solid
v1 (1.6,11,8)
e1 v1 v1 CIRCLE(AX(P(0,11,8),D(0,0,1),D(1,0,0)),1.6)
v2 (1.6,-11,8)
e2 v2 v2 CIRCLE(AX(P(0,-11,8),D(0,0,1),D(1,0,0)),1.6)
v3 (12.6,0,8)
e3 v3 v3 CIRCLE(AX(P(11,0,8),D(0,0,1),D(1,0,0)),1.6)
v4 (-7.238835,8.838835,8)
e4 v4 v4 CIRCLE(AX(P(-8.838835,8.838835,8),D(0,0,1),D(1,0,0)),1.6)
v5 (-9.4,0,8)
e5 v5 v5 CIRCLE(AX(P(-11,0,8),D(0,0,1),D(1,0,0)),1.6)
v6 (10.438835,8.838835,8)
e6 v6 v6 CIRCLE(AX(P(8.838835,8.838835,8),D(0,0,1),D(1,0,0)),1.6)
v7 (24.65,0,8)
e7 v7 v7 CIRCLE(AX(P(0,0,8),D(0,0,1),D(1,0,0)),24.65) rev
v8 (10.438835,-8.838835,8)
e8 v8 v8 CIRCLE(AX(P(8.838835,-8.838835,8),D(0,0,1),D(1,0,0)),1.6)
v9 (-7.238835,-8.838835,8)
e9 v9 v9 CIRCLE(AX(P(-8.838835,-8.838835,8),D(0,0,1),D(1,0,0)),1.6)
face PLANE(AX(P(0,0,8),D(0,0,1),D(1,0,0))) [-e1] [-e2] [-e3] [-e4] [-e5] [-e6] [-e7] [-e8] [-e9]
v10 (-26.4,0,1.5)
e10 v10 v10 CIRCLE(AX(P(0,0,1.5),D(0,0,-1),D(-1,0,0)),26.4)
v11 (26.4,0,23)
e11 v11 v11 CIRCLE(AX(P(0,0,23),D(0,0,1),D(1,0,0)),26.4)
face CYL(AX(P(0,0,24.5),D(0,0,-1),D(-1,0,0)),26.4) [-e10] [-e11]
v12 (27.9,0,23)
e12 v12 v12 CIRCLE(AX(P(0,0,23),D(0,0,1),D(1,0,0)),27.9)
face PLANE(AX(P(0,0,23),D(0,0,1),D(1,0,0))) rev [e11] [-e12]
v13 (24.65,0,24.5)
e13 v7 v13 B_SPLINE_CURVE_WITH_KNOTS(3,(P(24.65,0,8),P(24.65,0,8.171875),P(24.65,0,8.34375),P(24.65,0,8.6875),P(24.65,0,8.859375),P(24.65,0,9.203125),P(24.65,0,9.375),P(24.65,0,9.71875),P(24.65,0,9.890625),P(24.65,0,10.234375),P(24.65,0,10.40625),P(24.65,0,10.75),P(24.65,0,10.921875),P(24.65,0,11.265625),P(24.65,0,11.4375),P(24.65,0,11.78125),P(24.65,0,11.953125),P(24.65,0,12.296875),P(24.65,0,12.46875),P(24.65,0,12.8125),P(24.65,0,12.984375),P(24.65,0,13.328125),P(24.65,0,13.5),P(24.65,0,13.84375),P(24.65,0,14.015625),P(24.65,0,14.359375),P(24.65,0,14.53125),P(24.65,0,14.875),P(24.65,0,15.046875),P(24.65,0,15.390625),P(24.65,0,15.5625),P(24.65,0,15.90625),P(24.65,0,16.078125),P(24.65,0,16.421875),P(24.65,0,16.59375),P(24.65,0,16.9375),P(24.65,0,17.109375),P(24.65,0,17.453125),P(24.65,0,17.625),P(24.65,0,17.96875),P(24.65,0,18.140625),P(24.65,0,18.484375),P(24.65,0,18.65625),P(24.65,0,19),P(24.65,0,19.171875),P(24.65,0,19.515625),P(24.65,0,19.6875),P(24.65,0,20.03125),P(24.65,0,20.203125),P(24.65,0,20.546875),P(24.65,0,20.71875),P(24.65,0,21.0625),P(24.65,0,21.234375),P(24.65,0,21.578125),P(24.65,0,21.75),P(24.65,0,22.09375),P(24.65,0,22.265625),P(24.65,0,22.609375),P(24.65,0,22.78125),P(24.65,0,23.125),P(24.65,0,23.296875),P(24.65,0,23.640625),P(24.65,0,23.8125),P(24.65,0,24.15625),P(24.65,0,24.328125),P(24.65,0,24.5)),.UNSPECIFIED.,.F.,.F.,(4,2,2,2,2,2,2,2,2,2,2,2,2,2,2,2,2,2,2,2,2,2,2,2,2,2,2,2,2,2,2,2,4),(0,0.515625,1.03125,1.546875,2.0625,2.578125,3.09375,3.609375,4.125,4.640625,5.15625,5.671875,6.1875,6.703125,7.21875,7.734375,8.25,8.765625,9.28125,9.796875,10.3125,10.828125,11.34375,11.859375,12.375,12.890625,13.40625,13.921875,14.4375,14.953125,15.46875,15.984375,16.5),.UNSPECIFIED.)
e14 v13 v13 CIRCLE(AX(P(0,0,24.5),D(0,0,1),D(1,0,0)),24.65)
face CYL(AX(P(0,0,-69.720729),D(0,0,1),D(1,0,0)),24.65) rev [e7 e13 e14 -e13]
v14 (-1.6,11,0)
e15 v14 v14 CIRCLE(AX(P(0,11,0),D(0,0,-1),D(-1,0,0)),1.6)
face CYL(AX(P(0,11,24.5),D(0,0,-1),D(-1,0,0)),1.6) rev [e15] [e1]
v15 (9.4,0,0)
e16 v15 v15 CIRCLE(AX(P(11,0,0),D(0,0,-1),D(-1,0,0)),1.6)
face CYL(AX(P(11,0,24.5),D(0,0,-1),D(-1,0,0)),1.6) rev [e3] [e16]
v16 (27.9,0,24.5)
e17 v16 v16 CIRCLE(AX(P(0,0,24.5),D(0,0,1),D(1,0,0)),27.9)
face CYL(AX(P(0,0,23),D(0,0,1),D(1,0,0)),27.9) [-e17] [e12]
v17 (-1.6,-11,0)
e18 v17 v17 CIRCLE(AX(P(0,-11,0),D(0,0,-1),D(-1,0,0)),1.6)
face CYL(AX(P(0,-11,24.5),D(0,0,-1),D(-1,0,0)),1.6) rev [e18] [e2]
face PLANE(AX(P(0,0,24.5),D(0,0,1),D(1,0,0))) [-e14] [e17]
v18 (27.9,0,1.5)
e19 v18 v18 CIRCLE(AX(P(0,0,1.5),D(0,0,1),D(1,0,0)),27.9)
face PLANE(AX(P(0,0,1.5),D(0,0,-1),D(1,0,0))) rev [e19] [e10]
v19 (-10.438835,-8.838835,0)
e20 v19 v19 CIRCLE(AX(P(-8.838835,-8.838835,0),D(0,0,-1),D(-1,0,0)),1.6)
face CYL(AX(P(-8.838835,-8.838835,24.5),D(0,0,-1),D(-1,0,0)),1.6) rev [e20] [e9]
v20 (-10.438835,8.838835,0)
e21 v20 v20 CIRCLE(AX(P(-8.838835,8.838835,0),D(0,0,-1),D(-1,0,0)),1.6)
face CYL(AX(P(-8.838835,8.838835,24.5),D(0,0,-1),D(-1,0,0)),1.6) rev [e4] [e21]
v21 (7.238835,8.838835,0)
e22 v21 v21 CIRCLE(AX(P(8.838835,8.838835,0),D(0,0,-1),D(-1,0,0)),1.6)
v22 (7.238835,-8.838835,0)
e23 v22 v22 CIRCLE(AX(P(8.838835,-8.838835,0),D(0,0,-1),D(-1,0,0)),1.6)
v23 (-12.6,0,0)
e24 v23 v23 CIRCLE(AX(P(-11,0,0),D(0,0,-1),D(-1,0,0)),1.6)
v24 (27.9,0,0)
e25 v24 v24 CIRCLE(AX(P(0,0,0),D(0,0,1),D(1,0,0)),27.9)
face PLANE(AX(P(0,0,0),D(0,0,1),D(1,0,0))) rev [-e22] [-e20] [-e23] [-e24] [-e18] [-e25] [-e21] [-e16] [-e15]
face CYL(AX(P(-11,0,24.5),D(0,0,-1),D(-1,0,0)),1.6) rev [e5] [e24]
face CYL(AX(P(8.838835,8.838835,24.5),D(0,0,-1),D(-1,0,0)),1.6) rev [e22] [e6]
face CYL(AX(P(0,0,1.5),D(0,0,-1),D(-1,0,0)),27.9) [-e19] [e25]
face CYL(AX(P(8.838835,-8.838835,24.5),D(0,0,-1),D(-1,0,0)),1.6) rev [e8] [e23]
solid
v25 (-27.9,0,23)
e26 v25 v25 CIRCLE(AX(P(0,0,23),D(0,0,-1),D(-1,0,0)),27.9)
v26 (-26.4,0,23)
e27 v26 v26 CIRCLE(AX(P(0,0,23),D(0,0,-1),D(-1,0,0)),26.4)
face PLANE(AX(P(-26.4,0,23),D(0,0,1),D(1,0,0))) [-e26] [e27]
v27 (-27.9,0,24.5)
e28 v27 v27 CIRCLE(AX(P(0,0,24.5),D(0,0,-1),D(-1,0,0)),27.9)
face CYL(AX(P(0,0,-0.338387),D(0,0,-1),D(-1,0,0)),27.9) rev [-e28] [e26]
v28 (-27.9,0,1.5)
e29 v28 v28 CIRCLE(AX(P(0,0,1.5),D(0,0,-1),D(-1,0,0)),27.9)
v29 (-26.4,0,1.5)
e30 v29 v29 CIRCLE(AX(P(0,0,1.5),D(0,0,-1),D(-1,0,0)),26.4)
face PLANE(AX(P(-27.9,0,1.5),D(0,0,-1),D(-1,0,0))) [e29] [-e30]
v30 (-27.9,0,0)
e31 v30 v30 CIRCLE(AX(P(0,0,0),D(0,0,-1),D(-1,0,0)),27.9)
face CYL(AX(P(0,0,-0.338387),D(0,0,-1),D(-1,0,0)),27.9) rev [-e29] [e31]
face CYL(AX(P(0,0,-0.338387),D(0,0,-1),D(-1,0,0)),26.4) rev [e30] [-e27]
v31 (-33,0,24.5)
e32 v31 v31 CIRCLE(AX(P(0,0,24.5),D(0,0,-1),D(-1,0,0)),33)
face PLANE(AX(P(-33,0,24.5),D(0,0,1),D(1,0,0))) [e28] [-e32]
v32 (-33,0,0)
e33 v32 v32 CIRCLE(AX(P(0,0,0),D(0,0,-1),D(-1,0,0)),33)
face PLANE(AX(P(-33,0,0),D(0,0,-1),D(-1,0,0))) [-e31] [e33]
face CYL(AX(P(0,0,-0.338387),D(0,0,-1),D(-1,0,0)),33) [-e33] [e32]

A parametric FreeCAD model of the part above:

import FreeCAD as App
import Part
import Sketcher


def add_polygon(sketch, points):
    """Adds a closed chain of lines whose ends are joined by coincident constraints."""
    first, n = sketch.GeometryCount, len(points)
    for a, b in zip(points, points[1:] + points[:1]):
        sketch.addGeometry(Part.LineSegment(App.Vector(*a, 0), App.Vector(*b, 0)), False)
    for i in range(n):
        sketch.addConstraint(Sketcher.Constraint("Coincident", first + i, 2, first + (i + 1) % n, 1))

doc = App.newDocument("Part")
body = doc.addObject("PartDesign::Body", "Body")

# Sketch on XY plane
sketch1 = doc.addObject("Sketcher::SketchObject", "Sketch")
body.addObject(sketch1)
sketch1.AttachmentSupport = (doc.XY_Plane, [""])
sketch1.MapMode = "FlatFace"
sketch1.addGeometry(Part.Circle(App.Vector(0, 0, 0), App.Vector(0, 0, 1), 26.4), False)
sketch1.addConstraint([
    Sketcher.Constraint("Coincident", 0, 3, -1, 1),
    Sketcher.Constraint("Diameter", 0, 52.8),
])
pad1 = doc.addObject("PartDesign::Pad", "Pad")
body.addObject(pad1)
pad1.Profile = sketch1
pad1.Length = 24.5

# Sketch on XY plane
sketch2 = doc.addObject("Sketcher::SketchObject", "Sketch001")
body.addObject(sketch2)
sketch2.AttachmentSupport = (doc.XY_Plane, [""])
sketch2.MapMode = "FlatFace"
sketch2.AttachmentOffset = App.Placement(App.Vector(0, 0, 24.5), App.Rotation())
sketch2.addGeometry(Part.Circle(App.Vector(0, 0, 0), App.Vector(0, 0, 1), 24.65), False)
sketch2.addConstraint([
    Sketcher.Constraint("Coincident", 0, 3, -1, 1),
    Sketcher.Constraint("Diameter", 0, 49.3),
])
pocket1 = doc.addObject("PartDesign::Pocket", "Pocket")
body.addObject(pocket1)
pocket1.Profile = sketch2
pocket1.Length = 16.5

# Sketch on XY plane
sketch3 = doc.addObject("Sketcher::SketchObject", "Sketch002")
body.addObject(sketch3)
sketch3.AttachmentSupport = (doc.XY_Plane, [""])
sketch3.MapMode = "FlatFace"
sketch3.AttachmentOffset = App.Placement(App.Vector(0, 0, 23), App.Rotation())
sketch3.addGeometry([
    Part.Circle(App.Vector(0, 0, 0), App.Vector(0, 0, 1), 27.9),
    Part.Circle(App.Vector(0, 0, 0), App.Vector(0, 0, 1), 26.4),
], False)
sketch3.addConstraint([
    Sketcher.Constraint("Coincident", 0, 3, -1, 1),
    Sketcher.Constraint("Coincident", 1, 3, -1, 1),
    Sketcher.Constraint("Diameter", 0, 55.8),
    Sketcher.Constraint("Diameter", 1, 52.8),
])
pad2 = doc.addObject("PartDesign::Pad", "Pad001")
body.addObject(pad2)
pad2.Profile = sketch3
pad2.Length = 1.5
doc.recompute()

datumplane = doc.addObject("PartDesign::Plane", "DatumPlane")
body.addObject(datumplane)
datumplane.AttachmentSupport = (doc.XY_Plane, [""])
datumplane.MapMode = "FlatFace"
datumplane.AttachmentOffset = App.Placement(App.Vector(0, 0, 12.25), App.Rotation())
mirrored = doc.addObject("PartDesign::Mirrored", "Mirrored")
body.addObject(mirrored)
mirrored.Originals = [pad2]
mirrored.MirrorPlane = (datumplane, [""])
body.Tip = mirrored

# Sketch on XY plane
sketch4 = doc.addObject("Sketcher::SketchObject", "Sketch003")
body.addObject(sketch4)
sketch4.AttachmentSupport = (doc.XY_Plane, [""])
sketch4.MapMode = "FlatFace"
sketch4.addGeometry([
    Part.Circle(App.Vector(0, 11, 0), App.Vector(0, 0, 1), 1.6),  # 0
    Part.Circle(App.Vector(-11, 0, 0), App.Vector(0, 0, 1), 1.6),  # 1
    Part.Circle(App.Vector(0, -11, 0), App.Vector(0, 0, 1), 1.6),  # 2
    Part.Circle(App.Vector(11, 0, 0), App.Vector(0, 0, 1), 1.6),  # 3
    Part.Circle(App.Vector(-8.838835, 8.838835, 0), App.Vector(0, 0, 1), 1.6),  # 4
    Part.Circle(App.Vector(8.838835, 8.838835, 0), App.Vector(0, 0, 1), 1.6),  # 5
    Part.Circle(App.Vector(8.838835, -8.838835, 0), App.Vector(0, 0, 1), 1.6),  # 6
    Part.Circle(App.Vector(-8.838835, -8.838835, 0), App.Vector(0, 0, 1), 1.6),  # 7
], False)
sketch4.addConstraint([
    Sketcher.Constraint("Equal", 0, 1),
    Sketcher.Constraint("Equal", 1, 2),
    Sketcher.Constraint("Equal", 2, 3),
    Sketcher.Constraint("Equal", 3, 4),
    Sketcher.Constraint("Equal", 4, 5),
    Sketcher.Constraint("Equal", 5, 6),
    Sketcher.Constraint("Equal", 6, 7),
    Sketcher.Constraint("Symmetric", 0, 3, 2, 3, -1, 1),
    Sketcher.Constraint("Symmetric", 1, 3, 3, 3, -1, 1),
    Sketcher.Constraint("Symmetric", 4, 3, 6, 3, -1, 1),
    Sketcher.Constraint("Symmetric", 5, 3, 7, 3, -1, 1),
    Sketcher.Constraint("Symmetric", 4, 3, 5, 3, -2),
    Sketcher.Constraint("PointOnObject", 0, 3, -2),
    Sketcher.Constraint("PointOnObject", 1, 3, -1),
    Sketcher.Constraint("Diameter", 0, 3.2),
    Sketcher.Constraint("DistanceY", -1, 1, 0, 3, 11.0),
    Sketcher.Constraint("DistanceX", 1, 3, -1, 1, 11.0),
    Sketcher.Constraint("DistanceX", 4, 3, 5, 3, 17.67767),
    Sketcher.Constraint("DistanceY", 6, 3, 5, 3, 17.67767),
])
pocket2 = doc.addObject("PartDesign::Pocket", "Pocket001")
body.addObject(pocket2)
pocket2.Profile = sketch4
pocket2.Type = "ThroughAll"
pocket2.Reversed = True
body2 = doc.addObject("PartDesign::Body", "Body001")

# Sketch on XZ plane
sketch5 = doc.addObject("Sketcher::SketchObject", "Sketch004")
body2.addObject(sketch5)
sketch5.AttachmentSupport = (doc.getObject("XZ_Plane001"), [""])
sketch5.MapMode = "FlatFace"
add_polygon(sketch5, [(-33, 0), (-33, 24.5), (-27.9, 24.5), (-27.9, 23), (-26.4, 23), (-26.4, 1.5), (-27.9, 1.5), (-27.9, 0)])  # lines 0-7
sketch5.addConstraint([
    Sketcher.Constraint("Vertical", 0),
    Sketcher.Constraint("Horizontal", 1),
    Sketcher.Constraint("Vertical", 2),
    Sketcher.Constraint("Horizontal", 3),
    Sketcher.Constraint("Vertical", 4),
    Sketcher.Constraint("Horizontal", 5),
    Sketcher.Constraint("Vertical", 6),
    Sketcher.Constraint("Horizontal", 7),
    Sketcher.Constraint("PointOnObject", 6, 2, -1),
    Sketcher.Constraint("Vertical", 2, 2, 5, 2),
    Sketcher.Constraint("Equal", 5, 2),
    Sketcher.Constraint("Equal", 2, 6),
    Sketcher.Constraint("DistanceX", 1, 1, 1, 2, 5.1),
    Sketcher.Constraint("DistanceX", 3, 1, 3, 2, 1.5),
    Sketcher.Constraint("DistanceY", 0, 1, 0, 2, 24.5),
    Sketcher.Constraint("DistanceX", 0, 2, -1, 1, 33.0),
])
revolution = doc.addObject("PartDesign::Revolution", "Revolution")
body2.addObject(revolution)
revolution.Profile = sketch5
revolution.ReferenceAxis = (sketch5, ["V_Axis"])
revolution.Angle = 360

doc.recompute()
